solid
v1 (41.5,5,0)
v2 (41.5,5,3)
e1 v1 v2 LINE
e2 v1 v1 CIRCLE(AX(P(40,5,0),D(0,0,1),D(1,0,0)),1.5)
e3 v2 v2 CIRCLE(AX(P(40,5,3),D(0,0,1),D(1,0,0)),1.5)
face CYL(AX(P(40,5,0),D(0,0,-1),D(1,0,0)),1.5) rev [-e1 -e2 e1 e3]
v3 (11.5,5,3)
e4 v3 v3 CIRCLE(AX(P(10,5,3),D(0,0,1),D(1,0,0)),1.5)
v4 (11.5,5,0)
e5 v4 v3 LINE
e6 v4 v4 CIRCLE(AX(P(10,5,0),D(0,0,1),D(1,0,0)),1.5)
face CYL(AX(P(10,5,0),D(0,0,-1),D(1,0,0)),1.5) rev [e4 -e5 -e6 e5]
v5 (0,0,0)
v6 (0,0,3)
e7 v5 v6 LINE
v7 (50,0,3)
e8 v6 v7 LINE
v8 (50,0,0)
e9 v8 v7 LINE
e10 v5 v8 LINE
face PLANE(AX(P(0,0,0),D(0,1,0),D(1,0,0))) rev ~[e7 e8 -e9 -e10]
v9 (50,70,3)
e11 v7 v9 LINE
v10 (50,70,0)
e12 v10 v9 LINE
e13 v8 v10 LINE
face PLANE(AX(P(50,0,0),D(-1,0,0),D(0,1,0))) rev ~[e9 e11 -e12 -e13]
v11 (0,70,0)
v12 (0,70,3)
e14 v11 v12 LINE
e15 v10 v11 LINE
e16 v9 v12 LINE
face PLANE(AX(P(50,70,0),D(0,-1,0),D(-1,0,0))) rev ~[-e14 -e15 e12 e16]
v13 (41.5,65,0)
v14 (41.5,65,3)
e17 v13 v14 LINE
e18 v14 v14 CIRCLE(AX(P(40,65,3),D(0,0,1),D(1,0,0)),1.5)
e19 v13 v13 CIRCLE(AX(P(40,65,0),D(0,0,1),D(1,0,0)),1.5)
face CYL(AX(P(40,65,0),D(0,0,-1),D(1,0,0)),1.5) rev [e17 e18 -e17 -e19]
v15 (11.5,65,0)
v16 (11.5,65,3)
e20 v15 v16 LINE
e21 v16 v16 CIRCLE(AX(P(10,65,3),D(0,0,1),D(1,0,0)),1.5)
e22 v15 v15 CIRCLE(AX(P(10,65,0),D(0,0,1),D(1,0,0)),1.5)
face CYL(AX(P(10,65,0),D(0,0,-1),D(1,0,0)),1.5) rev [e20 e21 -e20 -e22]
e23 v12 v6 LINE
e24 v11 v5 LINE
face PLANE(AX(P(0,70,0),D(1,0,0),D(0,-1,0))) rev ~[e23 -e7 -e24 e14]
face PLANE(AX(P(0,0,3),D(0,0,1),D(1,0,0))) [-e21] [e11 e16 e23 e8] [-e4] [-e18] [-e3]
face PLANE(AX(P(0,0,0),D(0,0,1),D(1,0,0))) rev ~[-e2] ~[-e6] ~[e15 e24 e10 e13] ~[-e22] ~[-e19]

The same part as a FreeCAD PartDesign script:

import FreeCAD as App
import Part
import Sketcher

V = App.Vector


def add_polygon(sketch, points):
    """Adds a closed chain of lines whose ends are joined by coincident constraints."""
    first, n = sketch.GeometryCount, len(points)
    for a, b in zip(points, points[1:] + points[:1]):
        sketch.addGeometry(Part.LineSegment(App.Vector(*a, 0), App.Vector(*b, 0)), False)
    for i in range(n):
        sketch.addConstraint(Sketcher.Constraint("Coincident", first + i, 2, first + (i + 1) % n, 1))

doc = App.newDocument("Part")
body = doc.addObject("PartDesign::Body", "Body")

# Sketch on XY plane
sketch1 = body.newObject("Sketcher::SketchObject", "Sketch")
sketch1.AttachmentSupport = (doc.getObject("XY_Plane"), [""])
sketch1.MapMode = "FlatFace"
add_polygon(sketch1, [(0, 70), (0, 0), (50, 0), (50, 70)])  # lines 0-3
sketch1.addGeometry(Part.Circle(V(10, 5, 0), V(0, 0, 1), 1.5), False)  # 4
sketch1.addGeometry(Part.Circle(V(40, 5, 0), V(0, 0, 1), 1.5), False)  # 5
sketch1.addGeometry(Part.Circle(V(10, 65, 0), V(0, 0, 1), 1.5), False)  # 6
sketch1.addGeometry(Part.Circle(V(40, 65, 0), V(0, 0, 1), 1.5), False)  # 7
sketch1.addConstraint([
    Sketcher.Constraint("Vertical", 0),
    Sketcher.Constraint("Horizontal", 1),
    Sketcher.Constraint("Vertical", 2),
    Sketcher.Constraint("Horizontal", 3),
    Sketcher.Constraint("Coincident", 0, 2, -1, 1),
    Sketcher.Constraint("Equal", 4, 5),
    Sketcher.Constraint("Equal", 5, 6),
    Sketcher.Constraint("Equal", 6, 7),
    Sketcher.Constraint("Horizontal", 4, 3, 5, 3),
    Sketcher.Constraint("Horizontal", 6, 3, 7, 3),
    Sketcher.Constraint("Vertical", 4, 3, 6, 3),
    Sketcher.Constraint("Vertical", 5, 3, 7, 3),
    Sketcher.Constraint("Diameter", 4, 3.0),
    Sketcher.Constraint("DistanceX", 1, 1, 1, 2, 50.0),
    Sketcher.Constraint("DistanceY", 0, 2, 0, 1, 70.0),
    Sketcher.Constraint("DistanceX", -1, 1, 4, 3, 10.0),
    Sketcher.Constraint("DistanceY", -1, 1, 4, 3, 5.0),
    Sketcher.Constraint("DistanceX", 5, 3, 1, 2, 10.0),
    Sketcher.Constraint("DistanceY", 7, 3, 2, 2, 5.0),
])
pad1 = body.newObject("PartDesign::Pad", "Pad")
pad1.Profile = sketch1
pad1.Length = 3

doc.recompute()
